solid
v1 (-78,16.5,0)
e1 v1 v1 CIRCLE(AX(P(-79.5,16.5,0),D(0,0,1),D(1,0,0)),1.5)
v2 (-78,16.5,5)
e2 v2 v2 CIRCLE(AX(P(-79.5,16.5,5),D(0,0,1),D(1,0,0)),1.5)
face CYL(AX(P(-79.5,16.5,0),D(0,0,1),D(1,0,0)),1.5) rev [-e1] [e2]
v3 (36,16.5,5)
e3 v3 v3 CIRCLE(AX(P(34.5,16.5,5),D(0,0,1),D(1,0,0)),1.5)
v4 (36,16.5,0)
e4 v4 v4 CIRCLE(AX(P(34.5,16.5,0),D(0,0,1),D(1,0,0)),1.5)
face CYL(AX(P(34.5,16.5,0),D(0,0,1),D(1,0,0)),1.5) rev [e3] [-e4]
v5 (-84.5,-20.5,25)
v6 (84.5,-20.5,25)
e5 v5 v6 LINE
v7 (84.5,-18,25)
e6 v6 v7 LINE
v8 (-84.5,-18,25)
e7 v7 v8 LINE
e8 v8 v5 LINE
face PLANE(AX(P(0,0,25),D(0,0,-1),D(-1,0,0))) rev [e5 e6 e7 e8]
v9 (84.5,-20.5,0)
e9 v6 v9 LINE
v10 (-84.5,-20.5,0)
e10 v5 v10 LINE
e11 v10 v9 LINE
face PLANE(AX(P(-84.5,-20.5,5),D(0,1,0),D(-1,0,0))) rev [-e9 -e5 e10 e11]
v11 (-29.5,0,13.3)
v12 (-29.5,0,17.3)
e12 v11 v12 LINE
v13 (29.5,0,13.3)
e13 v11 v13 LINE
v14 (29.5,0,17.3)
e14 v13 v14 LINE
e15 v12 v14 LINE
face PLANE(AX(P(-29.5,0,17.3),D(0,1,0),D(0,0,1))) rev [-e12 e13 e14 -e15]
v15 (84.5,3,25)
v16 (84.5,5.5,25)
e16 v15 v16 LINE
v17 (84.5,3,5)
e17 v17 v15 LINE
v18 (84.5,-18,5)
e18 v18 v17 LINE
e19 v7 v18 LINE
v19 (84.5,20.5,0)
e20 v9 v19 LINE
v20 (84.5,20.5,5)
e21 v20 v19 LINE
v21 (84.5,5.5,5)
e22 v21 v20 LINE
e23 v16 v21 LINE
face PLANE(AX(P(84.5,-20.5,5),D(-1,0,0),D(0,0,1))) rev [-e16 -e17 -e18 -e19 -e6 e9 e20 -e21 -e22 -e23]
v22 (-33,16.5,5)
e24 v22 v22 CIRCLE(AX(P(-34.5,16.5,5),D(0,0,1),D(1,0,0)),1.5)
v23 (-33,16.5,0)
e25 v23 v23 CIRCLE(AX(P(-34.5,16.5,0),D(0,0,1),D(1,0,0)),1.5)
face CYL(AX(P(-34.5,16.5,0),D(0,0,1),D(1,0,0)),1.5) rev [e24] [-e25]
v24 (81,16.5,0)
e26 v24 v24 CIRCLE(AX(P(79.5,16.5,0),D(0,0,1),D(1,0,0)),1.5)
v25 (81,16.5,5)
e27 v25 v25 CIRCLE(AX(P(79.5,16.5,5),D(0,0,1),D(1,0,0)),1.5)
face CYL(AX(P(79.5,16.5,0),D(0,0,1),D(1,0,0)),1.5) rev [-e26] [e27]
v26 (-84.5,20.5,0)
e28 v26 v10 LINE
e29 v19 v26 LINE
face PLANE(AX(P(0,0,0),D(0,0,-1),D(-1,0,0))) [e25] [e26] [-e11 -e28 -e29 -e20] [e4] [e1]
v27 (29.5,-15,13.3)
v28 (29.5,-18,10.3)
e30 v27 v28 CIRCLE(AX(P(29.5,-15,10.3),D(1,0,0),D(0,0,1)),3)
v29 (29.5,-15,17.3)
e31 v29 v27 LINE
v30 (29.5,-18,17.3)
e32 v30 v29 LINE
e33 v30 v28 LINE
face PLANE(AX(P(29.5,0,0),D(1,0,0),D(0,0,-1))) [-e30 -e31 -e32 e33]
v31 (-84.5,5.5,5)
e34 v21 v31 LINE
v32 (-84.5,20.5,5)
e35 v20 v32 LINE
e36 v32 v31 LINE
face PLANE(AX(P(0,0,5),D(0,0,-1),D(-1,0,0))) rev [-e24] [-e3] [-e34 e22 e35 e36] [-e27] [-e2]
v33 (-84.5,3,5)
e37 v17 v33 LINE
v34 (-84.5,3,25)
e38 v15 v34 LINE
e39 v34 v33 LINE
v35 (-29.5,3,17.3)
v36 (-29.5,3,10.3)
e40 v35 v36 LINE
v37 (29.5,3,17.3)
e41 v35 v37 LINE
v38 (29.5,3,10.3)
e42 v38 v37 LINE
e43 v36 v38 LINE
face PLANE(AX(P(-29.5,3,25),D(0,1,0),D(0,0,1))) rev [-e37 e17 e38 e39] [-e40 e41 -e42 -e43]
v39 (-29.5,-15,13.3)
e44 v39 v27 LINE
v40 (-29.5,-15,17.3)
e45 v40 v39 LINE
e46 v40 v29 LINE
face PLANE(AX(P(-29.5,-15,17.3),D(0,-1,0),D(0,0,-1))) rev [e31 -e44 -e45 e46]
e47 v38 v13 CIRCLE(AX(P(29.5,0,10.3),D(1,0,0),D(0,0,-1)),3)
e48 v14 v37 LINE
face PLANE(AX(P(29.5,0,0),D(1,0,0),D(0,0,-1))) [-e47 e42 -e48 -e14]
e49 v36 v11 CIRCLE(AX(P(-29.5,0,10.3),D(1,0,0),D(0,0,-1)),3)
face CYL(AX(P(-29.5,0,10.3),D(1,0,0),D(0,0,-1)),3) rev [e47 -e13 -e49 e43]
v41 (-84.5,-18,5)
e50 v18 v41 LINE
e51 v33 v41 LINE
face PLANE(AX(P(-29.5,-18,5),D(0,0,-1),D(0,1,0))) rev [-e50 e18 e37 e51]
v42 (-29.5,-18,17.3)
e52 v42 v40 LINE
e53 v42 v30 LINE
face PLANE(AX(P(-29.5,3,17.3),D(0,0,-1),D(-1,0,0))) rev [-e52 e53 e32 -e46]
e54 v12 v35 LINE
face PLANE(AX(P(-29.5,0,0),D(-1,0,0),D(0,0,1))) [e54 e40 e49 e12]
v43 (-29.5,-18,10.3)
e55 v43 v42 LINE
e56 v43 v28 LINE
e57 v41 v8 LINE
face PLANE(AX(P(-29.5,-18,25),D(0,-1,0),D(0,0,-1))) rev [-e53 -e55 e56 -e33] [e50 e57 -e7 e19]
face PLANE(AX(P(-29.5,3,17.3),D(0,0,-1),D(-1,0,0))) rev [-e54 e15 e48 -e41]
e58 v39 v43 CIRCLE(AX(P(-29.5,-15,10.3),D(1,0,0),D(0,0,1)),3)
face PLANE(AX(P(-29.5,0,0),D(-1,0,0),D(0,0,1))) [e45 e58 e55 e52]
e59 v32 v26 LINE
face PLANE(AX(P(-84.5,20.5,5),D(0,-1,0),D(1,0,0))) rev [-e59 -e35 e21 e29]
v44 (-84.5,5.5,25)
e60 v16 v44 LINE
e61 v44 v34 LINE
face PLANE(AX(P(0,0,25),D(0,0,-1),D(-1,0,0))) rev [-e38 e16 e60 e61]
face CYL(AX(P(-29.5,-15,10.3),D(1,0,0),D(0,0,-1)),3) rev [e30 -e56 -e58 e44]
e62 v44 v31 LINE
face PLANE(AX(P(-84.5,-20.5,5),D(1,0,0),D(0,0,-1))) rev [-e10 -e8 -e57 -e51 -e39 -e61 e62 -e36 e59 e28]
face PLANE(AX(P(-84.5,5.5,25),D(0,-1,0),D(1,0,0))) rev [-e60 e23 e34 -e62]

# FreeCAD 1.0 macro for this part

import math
import FreeCAD as App
import Part
import Sketcher

doc = App.newDocument("Part")
body = doc.addObject("PartDesign::Body", "Body")

# Sketch on XY plane
sketch1 = body.newObject("Sketcher::SketchObject", "Sketch")
sketch1.AttachmentSupport = (doc.getObject("XY_Plane"), [""])
sketch1.MapMode = "FlatFace"
sketch1.addGeometry(Part.LineSegment(App.Vector(-84, 20, 0), App.Vector(-84, -20, 0)), False)
sketch1.addGeometry(Part.LineSegment(App.Vector(-84, -20, 0), App.Vector(84, -20, 0)), False)
sketch1.addGeometry(Part.LineSegment(App.Vector(84, -20, 0), App.Vector(84, 20, 0)), False)
sketch1.addGeometry(Part.LineSegment(App.Vector(84, 20, 0), App.Vector(-84, 20, 0)), False)
sketch1.addConstraint(Sketcher.Constraint("Coincident", 0, 2, 1, 1))
sketch1.addConstraint(Sketcher.Constraint("Coincident", 1, 2, 2, 1))
sketch1.addConstraint(Sketcher.Constraint("Coincident", 2, 2, 3, 1))
sketch1.addConstraint(Sketcher.Constraint("Coincident", 3, 2, 0, 1))
sketch1.addConstraint(Sketcher.Constraint("Vertical", 0))
sketch1.addConstraint(Sketcher.Constraint("Horizontal", 1))
sketch1.addConstraint(Sketcher.Constraint("Vertical", 2))
sketch1.addConstraint(Sketcher.Constraint("Horizontal", 3))
sketch1.addConstraint(Sketcher.Constraint("Symmetric", 0, 2, 2, 2, -1, 1))
sketch1.addConstraint(Sketcher.Constraint("DistanceX", 1, 1, 1, 2, 169.0))
sketch1.addConstraint(Sketcher.Constraint("DistanceY", 0, 2, 0, 1, 41.0))
pad1 = body.newObject("PartDesign::Pad", "Pad")
pad1.Profile = sketch1
pad1.Length = 5

# Sketch on XY plane
sketch2 = body.newObject("Sketcher::SketchObject", "Sketch001")
sketch2.AttachmentSupport = (doc.getObject("XY_Plane"), [""])
sketch2.MapMode = "FlatFace"
sketch2.AttachmentOffset = App.Placement(App.Vector(0, 0, 5), App.Rotation())
sketch2.addGeometry(Part.Circle(App.Vector(79.5, 16.5, 0), App.Vector(0, 0, 1), 1.5), False)
sketch2.addGeometry(Part.Circle(App.Vector(34.5, 16.5, 0), App.Vector(0, 0, 1), 1.5), False)
sketch2.addGeometry(Part.Circle(App.Vector(-34.5, 16.5, 0), App.Vector(0, 0, 1), 1.5), False)
sketch2.addGeometry(Part.Circle(App.Vector(-79.5, 16.5, 0), App.Vector(0, 0, 1), 1.5), False)
sketch2.addConstraint(Sketcher.Constraint("Equal", 0, 1))
sketch2.addConstraint(Sketcher.Constraint("Equal", 1, 2))
sketch2.addConstraint(Sketcher.Constraint("Equal", 2, 3))
sketch2.addConstraint(Sketcher.Constraint("Symmetric", 1, 3, 2, 3, -2))
sketch2.addConstraint(Sketcher.Constraint("Symmetric", 0, 3, 3, 3, -2))
sketch2.addConstraint(Sketcher.Constraint("Horizontal", 0, 3, 1, 3))
sketch2.addConstraint(Sketcher.Constraint("Diameter", 0, 3.0))
sketch2.addConstraint(Sketcher.Constraint("DistanceX", 1, 3, 0, 3, 45.0))
sketch2.addConstraint(Sketcher.Constraint("DistanceX", 2, 3, 1, 3, 69.0))
sketch2.addConstraint(Sketcher.Constraint("DistanceY", -1, 1, 0, 3, 16.5))
pocket1 = body.newObject("PartDesign::Pocket", "Pocket")
pocket1.Profile = sketch2
pocket1.Length = 5

# Sketch on XY plane
sketch3 = body.newObject("Sketcher::SketchObject", "Sketch002")
sketch3.AttachmentSupport = (doc.getObject("XY_Plane"), [""])
sketch3.MapMode = "FlatFace"
sketch3.AttachmentOffset = App.Placement(App.Vector(0, 0, 5), App.Rotation())
sketch3.addGeometry(Part.LineSegment(App.Vector(-84, 6, 0), App.Vector(-84, -20, 0)), False)
sketch3.addGeometry(Part.LineSegment(App.Vector(-84, -20, 0), App.Vector(84, -20, 0)), False)
sketch3.addGeometry(Part.LineSegment(App.Vector(84, -20, 0), App.Vector(84, 6, 0)), False)
sketch3.addGeometry(Part.LineSegment(App.Vector(84, 6, 0), App.Vector(-84, 6, 0)), False)
sketch3.addConstraint(Sketcher.Constraint("Coincident", 0, 2, 1, 1))
sketch3.addConstraint(Sketcher.Constraint("Coincident", 1, 2, 2, 1))
sketch3.addConstraint(Sketcher.Constraint("Coincident", 2, 2, 3, 1))
sketch3.addConstraint(Sketcher.Constraint("Coincident", 3, 2, 0, 1))
sketch3.addConstraint(Sketcher.Constraint("Vertical", 0))
sketch3.addConstraint(Sketcher.Constraint("Horizontal", 1))
sketch3.addConstraint(Sketcher.Constraint("Vertical", 2))
sketch3.addConstraint(Sketcher.Constraint("Horizontal", 3))
sketch3.addConstraint(Sketcher.Constraint("DistanceX", 1, 1, 1, 2, 169.0))
sketch3.addConstraint(Sketcher.Constraint("DistanceY", 0, 2, 0, 1, 26.0))
sketch3.addConstraint(Sketcher.Constraint("DistanceX", 0, 2, -1, 1, 84.5))
sketch3.addConstraint(Sketcher.Constraint("DistanceY", 0, 2, -1, 1, 20.5))
pad2 = body.newObject("PartDesign::Pad", "Pad001")
pad2.Profile = sketch3
pad2.Length = 20

# Sketch on YZ plane
sketch4 = body.newObject("Sketcher::SketchObject", "Sketch003")
sketch4.AttachmentSupport = (doc.getObject("YZ_Plane"), [""])
sketch4.MapMode = "FlatFace"
sketch4.AttachmentOffset = App.Placement(App.Vector(0, 0, -84.5), App.Rotation())
sketch4.addGeometry(Part.LineSegment(App.Vector(3, 5, 0), App.Vector(-18, 5, 0)), False)
sketch4.addGeometry(Part.LineSegment(App.Vector(-18, 5, 0), App.Vector(-18, 25, 0)), False)
sketch4.addGeometry(Part.LineSegment(App.Vector(-18, 25, 0), App.Vector(3, 25, 0)), False)
sketch4.addGeometry(Part.LineSegment(App.Vector(3, 25, 0), App.Vector(3, 5, 0)), False)
sketch4.addConstraint(Sketcher.Constraint("Coincident", 0, 2, 1, 1))
sketch4.addConstraint(Sketcher.Constraint("Coincident", 1, 2, 2, 1))
sketch4.addConstraint(Sketcher.Constraint("Coincident", 2, 2, 3, 1))
sketch4.addConstraint(Sketcher.Constraint("Coincident", 3, 2, 0, 1))
sketch4.addConstraint(Sketcher.Constraint("Horizontal", 0))
sketch4.addConstraint(Sketcher.Constraint("Vertical", 1))
sketch4.addConstraint(Sketcher.Constraint("Horizontal", 2))
sketch4.addConstraint(Sketcher.Constraint("Vertical", 3))
sketch4.addConstraint(Sketcher.Constraint("DistanceX", 0, 2, 0, 1, 21.0))
sketch4.addConstraint(Sketcher.Constraint("DistanceY", 1, 1, 1, 2, 20.0))
sketch4.addConstraint(Sketcher.Constraint("DistanceX", 0, 2, -1, 1, 18.0))
sketch4.addConstraint(Sketcher.Constraint("DistanceY", -1, 1, 0, 2, 5.0))
pocket2 = body.newObject("PartDesign::Pocket", "Pocket001")
pocket2.Profile = sketch4
pocket2.Length = 55
pocket2.Reversed = True

# Sketch on YZ plane
sketch5 = body.newObject("Sketcher::SketchObject", "Sketch004")
sketch5.AttachmentSupport = (doc.getObject("YZ_Plane"), [""])
sketch5.MapMode = "FlatFace"
sketch5.AttachmentOffset = App.Placement(App.Vector(0, 0, 84.5), App.Rotation())
sketch5.addGeometry(Part.LineSegment(App.Vector(3, 25, 0), App.Vector(-18, 25, 0)), False)
sketch5.addGeometry(Part.LineSegment(App.Vector(-18, 25, 0), App.Vector(-18, 5, 0)), False)
sketch5.addGeometry(Part.LineSegment(App.Vector(-18, 5, 0), App.Vector(3, 5, 0)), False)
sketch5.addGeometry(Part.LineSegment(App.Vector(3, 5, 0), App.Vector(3, 25, 0)), False)
sketch5.addConstraint(Sketcher.Constraint("Coincident", 0, 2, 1, 1))
sketch5.addConstraint(Sketcher.Constraint("Coincident", 1, 2, 2, 1))
sketch5.addConstraint(Sketcher.Constraint("Coincident", 2, 2, 3, 1))
sketch5.addConstraint(Sketcher.Constraint("Coincident", 3, 2, 0, 1))
sketch5.addConstraint(Sketcher.Constraint("Horizontal", 0))
sketch5.addConstraint(Sketcher.Constraint("Vertical", 1))
sketch5.addConstraint(Sketcher.Constraint("Horizontal", 2))
sketch5.addConstraint(Sketcher.Constraint("Vertical", 3))
sketch5.addConstraint(Sketcher.Constraint("DistanceX", 0, 2, 0, 1, 21.0))
sketch5.addConstraint(Sketcher.Constraint("DistanceY", 1, 2, 1, 1, 20.0))
sketch5.addConstraint(Sketcher.Constraint("DistanceX", 0, 2, -1, 1, 18.0))
sketch5.addConstraint(Sketcher.Constraint("DistanceY", -1, 1, 0, 2, 25.0))
pocket3 = body.newObject("PartDesign::Pocket", "Pocket002")
pocket3.Profile = sketch5
pocket3.Length = 55

# Sketch on YZ plane
sketch6 = body.newObject("Sketcher::SketchObject", "Sketch005")
sketch6.AttachmentSupport = (doc.getObject("YZ_Plane"), [""])
sketch6.MapMode = "FlatFace"
sketch6.AttachmentOffset = App.Placement(App.Vector(0, 0, 29.5), App.Rotation())
sketch6.addGeometry(Part.LineSegment(App.Vector(3, 5, 0), App.Vector(3, 10.3, 0)), False)
sketch6.addGeometry(Part.ArcOfCircle(Part.Circle(App.Vector(0, 10.3, 0), App.Vector(0, 0, 1), 3), math.radians(0), math.radians(90)), False)
sketch6.addGeometry(Part.LineSegment(App.Vector(0, 13.3, 0), App.Vector(-15, 13.3, 0)), False)
sketch6.addGeometry(Part.ArcOfCircle(Part.Circle(App.Vector(-15, 10.3, 0), App.Vector(0, 0, 1), 3), math.radians(90), math.radians(180)), False)
sketch6.addGeometry(Part.LineSegment(App.Vector(-18, 10.3, 0), App.Vector(-18, 5, 0)), False)
sketch6.addGeometry(Part.LineSegment(App.Vector(-18, 5, 0), App.Vector(3, 5, 0)), False)
sketch6.addConstraint(Sketcher.Constraint("Tangent", 0, 2, 1, 1))
sketch6.addConstraint(Sketcher.Constraint("Tangent", 1, 2, 2, 1))
sketch6.addConstraint(Sketcher.Constraint("Tangent", 2, 2, 3, 1))
sketch6.addConstraint(Sketcher.Constraint("Tangent", 3, 2, 4, 1))
sketch6.addConstraint(Sketcher.Constraint("Coincident", 4, 2, 5, 1))
sketch6.addConstraint(Sketcher.Constraint("Coincident", 5, 2, 0, 1))
sketch6.addConstraint(Sketcher.Constraint("Vertical", 0))
sketch6.addConstraint(Sketcher.Constraint("Horizontal", 2))
sketch6.addConstraint(Sketcher.Constraint("Vertical", 4))
sketch6.addConstraint(Sketcher.Constraint("Horizontal", 5))
sketch6.addConstraint(Sketcher.Constraint("Equal", 1, 3))
sketch6.addConstraint(Sketcher.Constraint("PointOnObject", 1, 3, -2))
sketch6.addConstraint(Sketcher.Constraint("Radius", 1, 3.0))
sketch6.addConstraint(Sketcher.Constraint("DistanceX", 2, 2, 2, 1, 15.0))
sketch6.addConstraint(Sketcher.Constraint("DistanceY", 0, 1, 0, 2, 5.3))
sketch6.addConstraint(Sketcher.Constraint("DistanceY", -1, 1, 4, 2, 5.0))
pocket4 = body.newObject("PartDesign::Pocket", "Pocket003")
pocket4.Profile = sketch6
pocket4.Length = 59

# Sketch on YZ plane
sketch7 = body.newObject("Sketcher::SketchObject", "Sketch006")
sketch7.AttachmentSupport = (doc.getObject("YZ_Plane"), [""])
sketch7.MapMode = "FlatFace"
sketch7.AttachmentOffset = App.Placement(App.Vector(0, 0, 29.5), App.Rotation())
sketch7.addGeometry(Part.LineSegment(App.Vector(3, 25, 0), App.Vector(-18, 25, 0)), False)
sketch7.addGeometry(Part.LineSegment(App.Vector(-18, 25, 0), App.Vector(-18, 17, 0)), False)
sketch7.addGeometry(Part.LineSegment(App.Vector(-18, 17, 0), App.Vector(3, 17, 0)), False)
sketch7.addGeometry(Part.LineSegment(App.Vector(3, 17, 0), App.Vector(3, 25, 0)), False)
sketch7.addConstraint(Sketcher.Constraint("Coincident", 0, 2, 1, 1))
sketch7.addConstraint(Sketcher.Constraint("Coincident", 1, 2, 2, 1))
sketch7.addConstraint(Sketcher.Constraint("Coincident", 2, 2, 3, 1))
sketch7.addConstraint(Sketcher.Constraint("Coincident", 3, 2, 0, 1))
sketch7.addConstraint(Sketcher.Constraint("Horizontal", 0))
sketch7.addConstraint(Sketcher.Constraint("Vertical", 1))
sketch7.addConstraint(Sketcher.Constraint("Horizontal", 2))
sketch7.addConstraint(Sketcher.Constraint("Vertical", 3))
sketch7.addConstraint(Sketcher.Constraint("DistanceX", 0, 2, 0, 1, 21.0))
sketch7.addConstraint(Sketcher.Constraint("DistanceY", 1, 2, 1, 1, 7.7))
sketch7.addConstraint(Sketcher.Constraint("DistanceX", 0, 2, -1, 1, 18.0))
sketch7.addConstraint(Sketcher.Constraint("DistanceY", -1, 1, 0, 2, 25.0))
pocket5 = body.newObject("PartDesign::Pocket", "Pocket004")
pocket5.Profile = sketch7
pocket5.Length = 59

# Sketch on YZ plane
sketch8 = body.newObject("Sketcher::SketchObject", "Sketch007")
sketch8.AttachmentSupport = (doc.getObject("YZ_Plane"), [""])
sketch8.MapMode = "FlatFace"
sketch8.AttachmentOffset = App.Placement(App.Vector(0, 0, 29.5), App.Rotation())
sketch8.addGeometry(Part.LineSegment(App.Vector(0, 17.3, 0), App.Vector(-15, 17.3, 0)), False)
sketch8.addGeometry(Part.LineSegment(App.Vector(-15, 17.3, 0), App.Vector(-15, 13.3, 0)), False)
sketch8.addGeometry(Part.LineSegment(App.Vector(-15, 13.3, 0), App.Vector(0, 13.3, 0)), False)
sketch8.addGeometry(Part.LineSegment(App.Vector(0, 13.3, 0), App.Vector(0, 17.3, 0)), False)
sketch8.addConstraint(Sketcher.Constraint("Coincident", 0, 2, 1, 1))
sketch8.addConstraint(Sketcher.Constraint("Coincident", 1, 2, 2, 1))
sketch8.addConstraint(Sketcher.Constraint("Coincident", 2, 2, 3, 1))
sketch8.addConstraint(Sketcher.Constraint("Coincident", 3, 2, 0, 1))
sketch8.addConstraint(Sketcher.Constraint("Horizontal", 0))
sketch8.addConstraint(Sketcher.Constraint("Vertical", 1))
sketch8.addConstraint(Sketcher.Constraint("Horizontal", 2))
sketch8.addConstraint(Sketcher.Constraint("Vertical", 3))
sketch8.addConstraint(Sketcher.Constraint("PointOnObject", 2, 2, -2))
sketch8.addConstraint(Sketcher.Constraint("DistanceX", 0, 2, 0, 1, 15.0))
sketch8.addConstraint(Sketcher.Constraint("DistanceY", 1, 2, 1, 1, 4.0))
sketch8.addConstraint(Sketcher.Constraint("DistanceY", -1, 1, 0, 2, 17.3))
pocket6 = body.newObject("PartDesign::Pocket", "Pocket005")
pocket6.Profile = sketch8
pocket6.Length = 59

doc.recompute()
